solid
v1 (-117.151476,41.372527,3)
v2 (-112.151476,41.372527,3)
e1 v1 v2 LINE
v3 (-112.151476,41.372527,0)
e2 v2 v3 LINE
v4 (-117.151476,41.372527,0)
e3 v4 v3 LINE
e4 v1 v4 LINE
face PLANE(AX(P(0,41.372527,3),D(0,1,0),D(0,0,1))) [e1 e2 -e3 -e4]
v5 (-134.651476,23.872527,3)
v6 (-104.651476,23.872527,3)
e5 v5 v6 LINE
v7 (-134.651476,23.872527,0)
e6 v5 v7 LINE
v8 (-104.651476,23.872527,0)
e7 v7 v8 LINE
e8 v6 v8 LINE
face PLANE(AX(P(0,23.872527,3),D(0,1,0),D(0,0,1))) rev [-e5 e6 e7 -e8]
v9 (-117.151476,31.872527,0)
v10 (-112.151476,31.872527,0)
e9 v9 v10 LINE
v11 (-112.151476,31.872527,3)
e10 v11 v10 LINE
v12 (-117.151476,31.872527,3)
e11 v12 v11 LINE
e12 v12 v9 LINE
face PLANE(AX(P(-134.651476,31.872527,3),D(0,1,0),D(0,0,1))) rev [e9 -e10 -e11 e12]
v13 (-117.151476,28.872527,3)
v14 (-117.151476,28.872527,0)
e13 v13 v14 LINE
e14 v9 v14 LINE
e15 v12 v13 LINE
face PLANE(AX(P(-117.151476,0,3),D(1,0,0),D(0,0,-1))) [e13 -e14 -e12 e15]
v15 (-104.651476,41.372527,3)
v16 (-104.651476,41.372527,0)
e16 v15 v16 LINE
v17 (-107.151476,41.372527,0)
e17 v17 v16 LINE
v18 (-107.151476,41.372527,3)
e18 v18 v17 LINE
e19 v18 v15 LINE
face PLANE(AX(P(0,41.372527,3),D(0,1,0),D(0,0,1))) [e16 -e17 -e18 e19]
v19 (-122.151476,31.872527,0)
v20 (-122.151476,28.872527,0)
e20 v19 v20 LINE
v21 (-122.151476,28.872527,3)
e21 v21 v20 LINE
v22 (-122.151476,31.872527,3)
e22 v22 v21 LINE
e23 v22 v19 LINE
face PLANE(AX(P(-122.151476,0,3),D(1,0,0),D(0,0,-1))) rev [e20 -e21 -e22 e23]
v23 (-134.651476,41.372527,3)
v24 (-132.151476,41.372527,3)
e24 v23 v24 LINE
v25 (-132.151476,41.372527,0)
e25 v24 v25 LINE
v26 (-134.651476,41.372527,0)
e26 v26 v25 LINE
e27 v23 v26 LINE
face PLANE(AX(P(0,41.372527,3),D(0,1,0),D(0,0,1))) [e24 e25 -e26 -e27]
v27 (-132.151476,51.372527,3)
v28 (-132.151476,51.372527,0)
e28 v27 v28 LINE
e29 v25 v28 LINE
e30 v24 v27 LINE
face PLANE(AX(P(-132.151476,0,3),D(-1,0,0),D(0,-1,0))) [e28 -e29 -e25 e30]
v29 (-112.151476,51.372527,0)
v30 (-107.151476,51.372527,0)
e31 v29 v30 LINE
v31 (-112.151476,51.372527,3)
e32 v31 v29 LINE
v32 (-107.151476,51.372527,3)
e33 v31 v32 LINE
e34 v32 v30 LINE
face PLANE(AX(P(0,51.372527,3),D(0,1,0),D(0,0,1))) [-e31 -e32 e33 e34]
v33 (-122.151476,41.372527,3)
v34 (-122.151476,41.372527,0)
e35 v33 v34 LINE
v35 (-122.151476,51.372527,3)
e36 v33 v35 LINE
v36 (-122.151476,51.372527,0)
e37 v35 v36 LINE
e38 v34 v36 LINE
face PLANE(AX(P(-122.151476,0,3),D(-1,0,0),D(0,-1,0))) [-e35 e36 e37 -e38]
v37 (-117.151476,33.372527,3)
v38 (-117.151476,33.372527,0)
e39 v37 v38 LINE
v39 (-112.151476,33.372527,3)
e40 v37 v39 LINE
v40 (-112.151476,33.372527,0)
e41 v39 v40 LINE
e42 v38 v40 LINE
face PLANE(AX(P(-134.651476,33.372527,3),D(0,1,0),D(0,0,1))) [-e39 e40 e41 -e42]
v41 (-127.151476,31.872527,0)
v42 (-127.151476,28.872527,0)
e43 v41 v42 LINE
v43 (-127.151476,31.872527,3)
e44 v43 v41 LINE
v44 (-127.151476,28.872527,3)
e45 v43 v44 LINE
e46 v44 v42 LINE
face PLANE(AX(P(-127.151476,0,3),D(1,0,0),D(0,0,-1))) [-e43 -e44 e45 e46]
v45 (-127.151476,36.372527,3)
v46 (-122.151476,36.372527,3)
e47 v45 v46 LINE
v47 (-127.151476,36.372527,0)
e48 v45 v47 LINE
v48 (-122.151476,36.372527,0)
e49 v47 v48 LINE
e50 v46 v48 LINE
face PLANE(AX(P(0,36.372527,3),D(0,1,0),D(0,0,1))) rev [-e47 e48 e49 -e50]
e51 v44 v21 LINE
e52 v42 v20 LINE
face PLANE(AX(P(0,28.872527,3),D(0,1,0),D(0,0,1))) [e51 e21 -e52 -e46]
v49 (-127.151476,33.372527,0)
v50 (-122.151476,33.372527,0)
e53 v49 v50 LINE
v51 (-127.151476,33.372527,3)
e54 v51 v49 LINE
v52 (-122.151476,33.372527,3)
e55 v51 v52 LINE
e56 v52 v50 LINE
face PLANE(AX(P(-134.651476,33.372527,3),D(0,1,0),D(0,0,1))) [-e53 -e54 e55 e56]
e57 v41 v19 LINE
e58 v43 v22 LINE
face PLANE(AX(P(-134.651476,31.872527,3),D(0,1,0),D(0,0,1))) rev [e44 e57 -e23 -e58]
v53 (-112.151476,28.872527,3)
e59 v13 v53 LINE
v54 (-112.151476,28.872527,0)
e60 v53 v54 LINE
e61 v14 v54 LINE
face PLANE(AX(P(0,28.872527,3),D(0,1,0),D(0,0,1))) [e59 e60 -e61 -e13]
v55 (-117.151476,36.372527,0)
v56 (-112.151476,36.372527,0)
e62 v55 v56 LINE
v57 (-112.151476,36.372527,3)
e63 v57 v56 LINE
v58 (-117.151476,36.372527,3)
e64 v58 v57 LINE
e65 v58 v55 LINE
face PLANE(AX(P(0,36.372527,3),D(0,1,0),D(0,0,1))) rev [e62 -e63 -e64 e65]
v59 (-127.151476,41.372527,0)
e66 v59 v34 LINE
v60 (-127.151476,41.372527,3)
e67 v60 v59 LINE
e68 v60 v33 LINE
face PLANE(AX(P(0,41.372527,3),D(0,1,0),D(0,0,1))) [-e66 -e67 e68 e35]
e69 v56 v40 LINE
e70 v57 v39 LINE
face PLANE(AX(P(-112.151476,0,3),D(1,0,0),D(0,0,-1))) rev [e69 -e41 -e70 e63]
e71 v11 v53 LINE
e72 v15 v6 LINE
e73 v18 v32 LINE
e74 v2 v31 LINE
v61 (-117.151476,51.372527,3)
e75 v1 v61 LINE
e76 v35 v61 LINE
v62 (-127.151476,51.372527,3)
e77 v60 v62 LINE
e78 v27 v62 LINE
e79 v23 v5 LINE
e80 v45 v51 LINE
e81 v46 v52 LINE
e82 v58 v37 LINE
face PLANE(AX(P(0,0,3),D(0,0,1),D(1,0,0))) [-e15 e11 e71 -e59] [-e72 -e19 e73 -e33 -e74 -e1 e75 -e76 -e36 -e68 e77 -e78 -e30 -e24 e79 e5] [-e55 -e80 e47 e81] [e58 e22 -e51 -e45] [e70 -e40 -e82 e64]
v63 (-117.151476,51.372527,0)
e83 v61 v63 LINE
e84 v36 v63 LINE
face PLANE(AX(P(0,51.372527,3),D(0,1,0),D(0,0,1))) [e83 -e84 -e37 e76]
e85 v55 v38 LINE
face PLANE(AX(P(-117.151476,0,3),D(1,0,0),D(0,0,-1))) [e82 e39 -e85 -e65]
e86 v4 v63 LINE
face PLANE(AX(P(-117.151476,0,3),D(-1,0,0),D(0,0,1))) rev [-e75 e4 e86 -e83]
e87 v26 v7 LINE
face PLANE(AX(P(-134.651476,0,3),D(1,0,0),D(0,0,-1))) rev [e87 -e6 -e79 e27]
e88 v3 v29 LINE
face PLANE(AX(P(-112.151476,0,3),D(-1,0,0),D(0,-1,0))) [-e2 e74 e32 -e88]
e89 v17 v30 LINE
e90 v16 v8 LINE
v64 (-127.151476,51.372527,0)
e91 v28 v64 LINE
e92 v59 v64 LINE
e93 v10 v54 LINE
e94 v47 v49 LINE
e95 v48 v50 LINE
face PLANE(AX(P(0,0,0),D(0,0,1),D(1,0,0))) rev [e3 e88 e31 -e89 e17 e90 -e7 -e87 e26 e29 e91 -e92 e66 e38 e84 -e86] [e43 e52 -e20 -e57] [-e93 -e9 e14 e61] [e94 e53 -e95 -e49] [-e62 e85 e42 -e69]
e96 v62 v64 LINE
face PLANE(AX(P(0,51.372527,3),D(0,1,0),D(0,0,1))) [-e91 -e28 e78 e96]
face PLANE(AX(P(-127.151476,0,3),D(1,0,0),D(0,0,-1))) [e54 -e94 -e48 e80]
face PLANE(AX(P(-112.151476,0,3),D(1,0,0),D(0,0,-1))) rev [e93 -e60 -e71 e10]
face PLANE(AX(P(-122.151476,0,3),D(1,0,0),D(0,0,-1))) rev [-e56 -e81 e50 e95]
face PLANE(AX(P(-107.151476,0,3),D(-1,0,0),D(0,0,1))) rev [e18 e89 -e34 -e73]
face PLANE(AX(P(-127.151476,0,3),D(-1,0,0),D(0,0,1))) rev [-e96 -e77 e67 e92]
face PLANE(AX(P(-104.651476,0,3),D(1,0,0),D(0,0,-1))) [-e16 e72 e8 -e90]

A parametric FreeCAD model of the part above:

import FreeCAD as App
import Part
import Sketcher


def add_polygon(sketch, points):
    """Adds a closed chain of lines whose ends are joined by coincident constraints."""
    first, n = sketch.GeometryCount, len(points)
    for a, b in zip(points, points[1:] + points[:1]):
        sketch.addGeometry(Part.LineSegment(App.Vector(*a, 0), App.Vector(*b, 0)), False)
    for i in range(n):
        sketch.addConstraint(Sketcher.Constraint("Coincident", first + i, 2, first + (i + 1) % n, 1))

doc = App.newDocument("Part")
body = doc.addObject("PartDesign::Body", "Body")

# Sketch on XY plane
sketch1 = body.newObject("Sketcher::SketchObject", "Sketch")
sketch1.AttachmentSupport = (doc.getObject("XY_Plane"), [""])
sketch1.MapMode = "FlatFace"
add_polygon(sketch1, [(-117.2, 41.4), (-117.2, 51.4), (-122.2, 51.4), (-122.2, 41.4), (-127.2, 41.4), (-127.2, 51.4), (-132.2, 51.4), (-132.2, 41.4), (-134.7, 41.4), (-134.7, 36.4), (-132.2, 36.4), (-132.2, 33.4), (-134.7, 33.4), (-134.7, 31.9), (-132.2, 31.9), (-132.2, 28.9), (-134.7, 28.9), (-134.7, 23.9), (-104.7, 23.9), (-104.7, 28.9), (-107.2, 28.9), (-107.2, 31.9), (-104.7, 31.9), (-104.7, 33.4), (-107.2, 33.4), (-107.2, 36.4), (-104.7, 36.4), (-104.7, 41.4), (-107.2, 41.4), (-107.2, 51.4), (-112.2, 51.4), (-112.2, 41.4)])  # lines 0-31
add_polygon(sketch1, [(-122.2, 28.9), (-127.2, 28.9), (-127.2, 31.9), (-122.2, 31.9)])  # lines 32-35
add_polygon(sketch1, [(-112.2, 28.9), (-117.2, 28.9), (-117.2, 31.9), (-112.2, 31.9)])  # lines 36-39
add_polygon(sketch1, [(-122.2, 33.4), (-127.2, 33.4), (-127.2, 36.4), (-122.2, 36.4)])  # lines 40-43
add_polygon(sketch1, [(-112.2, 33.4), (-117.2, 33.4), (-117.2, 36.4), (-112.2, 36.4)])  # lines 44-47
sketch1.addConstraint([
    Sketcher.Constraint("Vertical", 0),
    Sketcher.Constraint("Horizontal", 1),
    Sketcher.Constraint("Vertical", 2),
    Sketcher.Constraint("Horizontal", 3),
    Sketcher.Constraint("Vertical", 4),
    Sketcher.Constraint("Horizontal", 5),
    Sketcher.Constraint("Vertical", 6),
    Sketcher.Constraint("Horizontal", 7),
    Sketcher.Constraint("Vertical", 8),
    Sketcher.Constraint("Horizontal", 9),
    Sketcher.Constraint("Vertical", 10),
    Sketcher.Constraint("Horizontal", 11),
    Sketcher.Constraint("Vertical", 12),
    Sketcher.Constraint("Horizontal", 13),
    Sketcher.Constraint("Vertical", 14),
    Sketcher.Constraint("Horizontal", 15),
    Sketcher.Constraint("Vertical", 16),
    Sketcher.Constraint("Horizontal", 17),
    Sketcher.Constraint("Vertical", 18),
    Sketcher.Constraint("Horizontal", 19),
    Sketcher.Constraint("Vertical", 20),
    Sketcher.Constraint("Horizontal", 21),
    Sketcher.Constraint("Vertical", 22),
    Sketcher.Constraint("Horizontal", 23),
    Sketcher.Constraint("Vertical", 24),
    Sketcher.Constraint("Horizontal", 25),
    Sketcher.Constraint("Vertical", 26),
    Sketcher.Constraint("Horizontal", 27),
    Sketcher.Constraint("Vertical", 28),
    Sketcher.Constraint("Horizontal", 29),
    Sketcher.Constraint("Vertical", 30),
    Sketcher.Constraint("Horizontal", 31),
    Sketcher.Constraint("Horizontal", 32),
    Sketcher.Constraint("Vertical", 33),
    Sketcher.Constraint("Horizontal", 34),
    Sketcher.Constraint("Vertical", 35),
    Sketcher.Constraint("Horizontal", 36),
    Sketcher.Constraint("Vertical", 37),
    Sketcher.Constraint("Horizontal", 38),
    Sketcher.Constraint("Vertical", 39),
    Sketcher.Constraint("Horizontal", 40),
    Sketcher.Constraint("Vertical", 41),
    Sketcher.Constraint("Horizontal", 42),
    Sketcher.Constraint("Vertical", 43),
    Sketcher.Constraint("Horizontal", 44),
    Sketcher.Constraint("Vertical", 45),
    Sketcher.Constraint("Horizontal", 46),
    Sketcher.Constraint("Vertical", 47),
    Sketcher.Constraint("Horizontal", 1, 2, 4, 2),
    Sketcher.Constraint("Horizontal", 3, 2, 6, 2),
    Sketcher.Constraint("Horizontal", 15, 2, 18, 2),
    Sketcher.Constraint("Horizontal", 13, 2, 20, 2),
    Sketcher.Constraint("Horizontal", 11, 2, 22, 2),
    Sketcher.Constraint("Horizontal", 9, 2, 24, 2),
    Sketcher.Constraint("Horizontal", 7, 2, 26, 2),
    Sketcher.Constraint("Horizontal", 5, 2, 28, 2),
    Sketcher.Constraint("Horizontal", 27, 2, 30, 2),
    Sketcher.Constraint("Horizontal", 19, 2, 32, 2),
    Sketcher.Constraint("Horizontal", 21, 2, 33, 2),
    Sketcher.Constraint("Horizontal", 35, 2, 36, 2),
    Sketcher.Constraint("Horizontal", 34, 2, 37, 2),
    Sketcher.Constraint("Horizontal", 23, 2, 40, 2),
    Sketcher.Constraint("Horizontal", 25, 2, 41, 2),
    Sketcher.Constraint("Horizontal", 43, 2, 44, 2),
    Sketcher.Constraint("Horizontal", 42, 2, 45, 2),
    Sketcher.Constraint("Vertical", 6, 2, 9, 2),
    Sketcher.Constraint("Vertical", 8, 2, 11, 2),
    Sketcher.Constraint("Vertical", 10, 2, 13, 2),
    Sketcher.Constraint("Vertical", 12, 2, 15, 2),
    Sketcher.Constraint("Vertical", 18, 2, 21, 2),
    Sketcher.Constraint("Vertical", 20, 2, 23, 2),
    Sketcher.Constraint("Vertical", 22, 2, 25, 2),
    Sketcher.Constraint("Vertical", 24, 2, 27, 2),
    Sketcher.Constraint("Vertical", 4, 2, 32, 2),
    Sketcher.Constraint("Vertical", 2, 2, 34, 2),
    Sketcher.Constraint("Vertical", 31, 2, 36, 2),
    Sketcher.Constraint("Vertical", 30, 2, 38, 2),
    Sketcher.Constraint("Vertical", 33, 2, 40, 2),
    Sketcher.Constraint("Vertical", 35, 2, 42, 2),
    Sketcher.Constraint("Vertical", 37, 2, 44, 2),
    Sketcher.Constraint("Vertical", 39, 2, 46, 2),
    Sketcher.Constraint("Equal", 1, 3),
    Sketcher.Constraint("Equal", 3, 5),
    Sketcher.Constraint("Equal", 15, 19),
    Sketcher.Constraint("Equal", 5, 29),
    Sketcher.Constraint("Equal", 29, 31),
    Sketcher.Constraint("Equal", 46, 8),
    Sketcher.Constraint("Equal", 10, 14),
    Sketcher.Constraint("Equal", 8, 16),
    Sketcher.Constraint("DistanceX", 1, 2, 1, 1, 5.0),
    Sketcher.Constraint("DistanceX", 17, 1, 17, 2, 30.0),
    Sketcher.Constraint("DistanceY", 0, 1, 0, 2, 10.0),
    Sketcher.Constraint("DistanceY", 10, 2, 10, 1, 3.0),
    Sketcher.Constraint("DistanceY", 12, 2, 12, 1, 1.5),
    Sketcher.Constraint("DistanceX", 0, 2, -1, 1, 117.151476),
    Sketcher.Constraint("DistanceY", -1, 1, 0, 2, 51.372527),
])
pad1 = body.newObject("PartDesign::Pad", "Pad")
pad1.Profile = sketch1
pad1.Length = 3

# Sketch on XY plane
sketch2 = body.newObject("Sketcher::SketchObject", "Sketch001")
sketch2.AttachmentSupport = (doc.getObject("XY_Plane"), [""])
sketch2.MapMode = "FlatFace"
add_polygon(sketch2, [(-132.2, 36.4), (-132.2, 28.9), (-134.7, 28.9), (-134.7, 36.4)])  # lines 0-3
add_polygon(sketch2, [(-104.7, 36.4), (-104.7, 28.9), (-107.2, 28.9), (-107.2, 36.4)])  # lines 4-7
sketch2.addConstraint([
    Sketcher.Constraint("Vertical", 0),
    Sketcher.Constraint("Horizontal", 1),
    Sketcher.Constraint("Vertical", 2),
    Sketcher.Constraint("Horizontal", 3),
    Sketcher.Constraint("Vertical", 4),
    Sketcher.Constraint("Horizontal", 5),
    Sketcher.Constraint("Vertical", 6),
    Sketcher.Constraint("Horizontal", 7),
    Sketcher.Constraint("Horizontal", 1, 2, 4, 2),
    Sketcher.Constraint("Horizontal", 3, 2, 6, 2),
    Sketcher.Constraint("Equal", 3, 5),
    Sketcher.Constraint("DistanceX", 1, 2, 1, 1, 2.5),
    Sketcher.Constraint("DistanceY", 0, 2, 0, 1, 7.5),
    Sketcher.Constraint("DistanceX", 1, 2, 4, 2, 30.0),
    Sketcher.Constraint("DistanceX", 0, 2, -1, 1, 132.151476),
    Sketcher.Constraint("DistanceY", -1, 1, 0, 2, 28.872527),
])
pad2 = body.newObject("PartDesign::Pad", "Pad001")
pad2.Profile = sketch2
pad2.Length = 3

doc.recompute()
